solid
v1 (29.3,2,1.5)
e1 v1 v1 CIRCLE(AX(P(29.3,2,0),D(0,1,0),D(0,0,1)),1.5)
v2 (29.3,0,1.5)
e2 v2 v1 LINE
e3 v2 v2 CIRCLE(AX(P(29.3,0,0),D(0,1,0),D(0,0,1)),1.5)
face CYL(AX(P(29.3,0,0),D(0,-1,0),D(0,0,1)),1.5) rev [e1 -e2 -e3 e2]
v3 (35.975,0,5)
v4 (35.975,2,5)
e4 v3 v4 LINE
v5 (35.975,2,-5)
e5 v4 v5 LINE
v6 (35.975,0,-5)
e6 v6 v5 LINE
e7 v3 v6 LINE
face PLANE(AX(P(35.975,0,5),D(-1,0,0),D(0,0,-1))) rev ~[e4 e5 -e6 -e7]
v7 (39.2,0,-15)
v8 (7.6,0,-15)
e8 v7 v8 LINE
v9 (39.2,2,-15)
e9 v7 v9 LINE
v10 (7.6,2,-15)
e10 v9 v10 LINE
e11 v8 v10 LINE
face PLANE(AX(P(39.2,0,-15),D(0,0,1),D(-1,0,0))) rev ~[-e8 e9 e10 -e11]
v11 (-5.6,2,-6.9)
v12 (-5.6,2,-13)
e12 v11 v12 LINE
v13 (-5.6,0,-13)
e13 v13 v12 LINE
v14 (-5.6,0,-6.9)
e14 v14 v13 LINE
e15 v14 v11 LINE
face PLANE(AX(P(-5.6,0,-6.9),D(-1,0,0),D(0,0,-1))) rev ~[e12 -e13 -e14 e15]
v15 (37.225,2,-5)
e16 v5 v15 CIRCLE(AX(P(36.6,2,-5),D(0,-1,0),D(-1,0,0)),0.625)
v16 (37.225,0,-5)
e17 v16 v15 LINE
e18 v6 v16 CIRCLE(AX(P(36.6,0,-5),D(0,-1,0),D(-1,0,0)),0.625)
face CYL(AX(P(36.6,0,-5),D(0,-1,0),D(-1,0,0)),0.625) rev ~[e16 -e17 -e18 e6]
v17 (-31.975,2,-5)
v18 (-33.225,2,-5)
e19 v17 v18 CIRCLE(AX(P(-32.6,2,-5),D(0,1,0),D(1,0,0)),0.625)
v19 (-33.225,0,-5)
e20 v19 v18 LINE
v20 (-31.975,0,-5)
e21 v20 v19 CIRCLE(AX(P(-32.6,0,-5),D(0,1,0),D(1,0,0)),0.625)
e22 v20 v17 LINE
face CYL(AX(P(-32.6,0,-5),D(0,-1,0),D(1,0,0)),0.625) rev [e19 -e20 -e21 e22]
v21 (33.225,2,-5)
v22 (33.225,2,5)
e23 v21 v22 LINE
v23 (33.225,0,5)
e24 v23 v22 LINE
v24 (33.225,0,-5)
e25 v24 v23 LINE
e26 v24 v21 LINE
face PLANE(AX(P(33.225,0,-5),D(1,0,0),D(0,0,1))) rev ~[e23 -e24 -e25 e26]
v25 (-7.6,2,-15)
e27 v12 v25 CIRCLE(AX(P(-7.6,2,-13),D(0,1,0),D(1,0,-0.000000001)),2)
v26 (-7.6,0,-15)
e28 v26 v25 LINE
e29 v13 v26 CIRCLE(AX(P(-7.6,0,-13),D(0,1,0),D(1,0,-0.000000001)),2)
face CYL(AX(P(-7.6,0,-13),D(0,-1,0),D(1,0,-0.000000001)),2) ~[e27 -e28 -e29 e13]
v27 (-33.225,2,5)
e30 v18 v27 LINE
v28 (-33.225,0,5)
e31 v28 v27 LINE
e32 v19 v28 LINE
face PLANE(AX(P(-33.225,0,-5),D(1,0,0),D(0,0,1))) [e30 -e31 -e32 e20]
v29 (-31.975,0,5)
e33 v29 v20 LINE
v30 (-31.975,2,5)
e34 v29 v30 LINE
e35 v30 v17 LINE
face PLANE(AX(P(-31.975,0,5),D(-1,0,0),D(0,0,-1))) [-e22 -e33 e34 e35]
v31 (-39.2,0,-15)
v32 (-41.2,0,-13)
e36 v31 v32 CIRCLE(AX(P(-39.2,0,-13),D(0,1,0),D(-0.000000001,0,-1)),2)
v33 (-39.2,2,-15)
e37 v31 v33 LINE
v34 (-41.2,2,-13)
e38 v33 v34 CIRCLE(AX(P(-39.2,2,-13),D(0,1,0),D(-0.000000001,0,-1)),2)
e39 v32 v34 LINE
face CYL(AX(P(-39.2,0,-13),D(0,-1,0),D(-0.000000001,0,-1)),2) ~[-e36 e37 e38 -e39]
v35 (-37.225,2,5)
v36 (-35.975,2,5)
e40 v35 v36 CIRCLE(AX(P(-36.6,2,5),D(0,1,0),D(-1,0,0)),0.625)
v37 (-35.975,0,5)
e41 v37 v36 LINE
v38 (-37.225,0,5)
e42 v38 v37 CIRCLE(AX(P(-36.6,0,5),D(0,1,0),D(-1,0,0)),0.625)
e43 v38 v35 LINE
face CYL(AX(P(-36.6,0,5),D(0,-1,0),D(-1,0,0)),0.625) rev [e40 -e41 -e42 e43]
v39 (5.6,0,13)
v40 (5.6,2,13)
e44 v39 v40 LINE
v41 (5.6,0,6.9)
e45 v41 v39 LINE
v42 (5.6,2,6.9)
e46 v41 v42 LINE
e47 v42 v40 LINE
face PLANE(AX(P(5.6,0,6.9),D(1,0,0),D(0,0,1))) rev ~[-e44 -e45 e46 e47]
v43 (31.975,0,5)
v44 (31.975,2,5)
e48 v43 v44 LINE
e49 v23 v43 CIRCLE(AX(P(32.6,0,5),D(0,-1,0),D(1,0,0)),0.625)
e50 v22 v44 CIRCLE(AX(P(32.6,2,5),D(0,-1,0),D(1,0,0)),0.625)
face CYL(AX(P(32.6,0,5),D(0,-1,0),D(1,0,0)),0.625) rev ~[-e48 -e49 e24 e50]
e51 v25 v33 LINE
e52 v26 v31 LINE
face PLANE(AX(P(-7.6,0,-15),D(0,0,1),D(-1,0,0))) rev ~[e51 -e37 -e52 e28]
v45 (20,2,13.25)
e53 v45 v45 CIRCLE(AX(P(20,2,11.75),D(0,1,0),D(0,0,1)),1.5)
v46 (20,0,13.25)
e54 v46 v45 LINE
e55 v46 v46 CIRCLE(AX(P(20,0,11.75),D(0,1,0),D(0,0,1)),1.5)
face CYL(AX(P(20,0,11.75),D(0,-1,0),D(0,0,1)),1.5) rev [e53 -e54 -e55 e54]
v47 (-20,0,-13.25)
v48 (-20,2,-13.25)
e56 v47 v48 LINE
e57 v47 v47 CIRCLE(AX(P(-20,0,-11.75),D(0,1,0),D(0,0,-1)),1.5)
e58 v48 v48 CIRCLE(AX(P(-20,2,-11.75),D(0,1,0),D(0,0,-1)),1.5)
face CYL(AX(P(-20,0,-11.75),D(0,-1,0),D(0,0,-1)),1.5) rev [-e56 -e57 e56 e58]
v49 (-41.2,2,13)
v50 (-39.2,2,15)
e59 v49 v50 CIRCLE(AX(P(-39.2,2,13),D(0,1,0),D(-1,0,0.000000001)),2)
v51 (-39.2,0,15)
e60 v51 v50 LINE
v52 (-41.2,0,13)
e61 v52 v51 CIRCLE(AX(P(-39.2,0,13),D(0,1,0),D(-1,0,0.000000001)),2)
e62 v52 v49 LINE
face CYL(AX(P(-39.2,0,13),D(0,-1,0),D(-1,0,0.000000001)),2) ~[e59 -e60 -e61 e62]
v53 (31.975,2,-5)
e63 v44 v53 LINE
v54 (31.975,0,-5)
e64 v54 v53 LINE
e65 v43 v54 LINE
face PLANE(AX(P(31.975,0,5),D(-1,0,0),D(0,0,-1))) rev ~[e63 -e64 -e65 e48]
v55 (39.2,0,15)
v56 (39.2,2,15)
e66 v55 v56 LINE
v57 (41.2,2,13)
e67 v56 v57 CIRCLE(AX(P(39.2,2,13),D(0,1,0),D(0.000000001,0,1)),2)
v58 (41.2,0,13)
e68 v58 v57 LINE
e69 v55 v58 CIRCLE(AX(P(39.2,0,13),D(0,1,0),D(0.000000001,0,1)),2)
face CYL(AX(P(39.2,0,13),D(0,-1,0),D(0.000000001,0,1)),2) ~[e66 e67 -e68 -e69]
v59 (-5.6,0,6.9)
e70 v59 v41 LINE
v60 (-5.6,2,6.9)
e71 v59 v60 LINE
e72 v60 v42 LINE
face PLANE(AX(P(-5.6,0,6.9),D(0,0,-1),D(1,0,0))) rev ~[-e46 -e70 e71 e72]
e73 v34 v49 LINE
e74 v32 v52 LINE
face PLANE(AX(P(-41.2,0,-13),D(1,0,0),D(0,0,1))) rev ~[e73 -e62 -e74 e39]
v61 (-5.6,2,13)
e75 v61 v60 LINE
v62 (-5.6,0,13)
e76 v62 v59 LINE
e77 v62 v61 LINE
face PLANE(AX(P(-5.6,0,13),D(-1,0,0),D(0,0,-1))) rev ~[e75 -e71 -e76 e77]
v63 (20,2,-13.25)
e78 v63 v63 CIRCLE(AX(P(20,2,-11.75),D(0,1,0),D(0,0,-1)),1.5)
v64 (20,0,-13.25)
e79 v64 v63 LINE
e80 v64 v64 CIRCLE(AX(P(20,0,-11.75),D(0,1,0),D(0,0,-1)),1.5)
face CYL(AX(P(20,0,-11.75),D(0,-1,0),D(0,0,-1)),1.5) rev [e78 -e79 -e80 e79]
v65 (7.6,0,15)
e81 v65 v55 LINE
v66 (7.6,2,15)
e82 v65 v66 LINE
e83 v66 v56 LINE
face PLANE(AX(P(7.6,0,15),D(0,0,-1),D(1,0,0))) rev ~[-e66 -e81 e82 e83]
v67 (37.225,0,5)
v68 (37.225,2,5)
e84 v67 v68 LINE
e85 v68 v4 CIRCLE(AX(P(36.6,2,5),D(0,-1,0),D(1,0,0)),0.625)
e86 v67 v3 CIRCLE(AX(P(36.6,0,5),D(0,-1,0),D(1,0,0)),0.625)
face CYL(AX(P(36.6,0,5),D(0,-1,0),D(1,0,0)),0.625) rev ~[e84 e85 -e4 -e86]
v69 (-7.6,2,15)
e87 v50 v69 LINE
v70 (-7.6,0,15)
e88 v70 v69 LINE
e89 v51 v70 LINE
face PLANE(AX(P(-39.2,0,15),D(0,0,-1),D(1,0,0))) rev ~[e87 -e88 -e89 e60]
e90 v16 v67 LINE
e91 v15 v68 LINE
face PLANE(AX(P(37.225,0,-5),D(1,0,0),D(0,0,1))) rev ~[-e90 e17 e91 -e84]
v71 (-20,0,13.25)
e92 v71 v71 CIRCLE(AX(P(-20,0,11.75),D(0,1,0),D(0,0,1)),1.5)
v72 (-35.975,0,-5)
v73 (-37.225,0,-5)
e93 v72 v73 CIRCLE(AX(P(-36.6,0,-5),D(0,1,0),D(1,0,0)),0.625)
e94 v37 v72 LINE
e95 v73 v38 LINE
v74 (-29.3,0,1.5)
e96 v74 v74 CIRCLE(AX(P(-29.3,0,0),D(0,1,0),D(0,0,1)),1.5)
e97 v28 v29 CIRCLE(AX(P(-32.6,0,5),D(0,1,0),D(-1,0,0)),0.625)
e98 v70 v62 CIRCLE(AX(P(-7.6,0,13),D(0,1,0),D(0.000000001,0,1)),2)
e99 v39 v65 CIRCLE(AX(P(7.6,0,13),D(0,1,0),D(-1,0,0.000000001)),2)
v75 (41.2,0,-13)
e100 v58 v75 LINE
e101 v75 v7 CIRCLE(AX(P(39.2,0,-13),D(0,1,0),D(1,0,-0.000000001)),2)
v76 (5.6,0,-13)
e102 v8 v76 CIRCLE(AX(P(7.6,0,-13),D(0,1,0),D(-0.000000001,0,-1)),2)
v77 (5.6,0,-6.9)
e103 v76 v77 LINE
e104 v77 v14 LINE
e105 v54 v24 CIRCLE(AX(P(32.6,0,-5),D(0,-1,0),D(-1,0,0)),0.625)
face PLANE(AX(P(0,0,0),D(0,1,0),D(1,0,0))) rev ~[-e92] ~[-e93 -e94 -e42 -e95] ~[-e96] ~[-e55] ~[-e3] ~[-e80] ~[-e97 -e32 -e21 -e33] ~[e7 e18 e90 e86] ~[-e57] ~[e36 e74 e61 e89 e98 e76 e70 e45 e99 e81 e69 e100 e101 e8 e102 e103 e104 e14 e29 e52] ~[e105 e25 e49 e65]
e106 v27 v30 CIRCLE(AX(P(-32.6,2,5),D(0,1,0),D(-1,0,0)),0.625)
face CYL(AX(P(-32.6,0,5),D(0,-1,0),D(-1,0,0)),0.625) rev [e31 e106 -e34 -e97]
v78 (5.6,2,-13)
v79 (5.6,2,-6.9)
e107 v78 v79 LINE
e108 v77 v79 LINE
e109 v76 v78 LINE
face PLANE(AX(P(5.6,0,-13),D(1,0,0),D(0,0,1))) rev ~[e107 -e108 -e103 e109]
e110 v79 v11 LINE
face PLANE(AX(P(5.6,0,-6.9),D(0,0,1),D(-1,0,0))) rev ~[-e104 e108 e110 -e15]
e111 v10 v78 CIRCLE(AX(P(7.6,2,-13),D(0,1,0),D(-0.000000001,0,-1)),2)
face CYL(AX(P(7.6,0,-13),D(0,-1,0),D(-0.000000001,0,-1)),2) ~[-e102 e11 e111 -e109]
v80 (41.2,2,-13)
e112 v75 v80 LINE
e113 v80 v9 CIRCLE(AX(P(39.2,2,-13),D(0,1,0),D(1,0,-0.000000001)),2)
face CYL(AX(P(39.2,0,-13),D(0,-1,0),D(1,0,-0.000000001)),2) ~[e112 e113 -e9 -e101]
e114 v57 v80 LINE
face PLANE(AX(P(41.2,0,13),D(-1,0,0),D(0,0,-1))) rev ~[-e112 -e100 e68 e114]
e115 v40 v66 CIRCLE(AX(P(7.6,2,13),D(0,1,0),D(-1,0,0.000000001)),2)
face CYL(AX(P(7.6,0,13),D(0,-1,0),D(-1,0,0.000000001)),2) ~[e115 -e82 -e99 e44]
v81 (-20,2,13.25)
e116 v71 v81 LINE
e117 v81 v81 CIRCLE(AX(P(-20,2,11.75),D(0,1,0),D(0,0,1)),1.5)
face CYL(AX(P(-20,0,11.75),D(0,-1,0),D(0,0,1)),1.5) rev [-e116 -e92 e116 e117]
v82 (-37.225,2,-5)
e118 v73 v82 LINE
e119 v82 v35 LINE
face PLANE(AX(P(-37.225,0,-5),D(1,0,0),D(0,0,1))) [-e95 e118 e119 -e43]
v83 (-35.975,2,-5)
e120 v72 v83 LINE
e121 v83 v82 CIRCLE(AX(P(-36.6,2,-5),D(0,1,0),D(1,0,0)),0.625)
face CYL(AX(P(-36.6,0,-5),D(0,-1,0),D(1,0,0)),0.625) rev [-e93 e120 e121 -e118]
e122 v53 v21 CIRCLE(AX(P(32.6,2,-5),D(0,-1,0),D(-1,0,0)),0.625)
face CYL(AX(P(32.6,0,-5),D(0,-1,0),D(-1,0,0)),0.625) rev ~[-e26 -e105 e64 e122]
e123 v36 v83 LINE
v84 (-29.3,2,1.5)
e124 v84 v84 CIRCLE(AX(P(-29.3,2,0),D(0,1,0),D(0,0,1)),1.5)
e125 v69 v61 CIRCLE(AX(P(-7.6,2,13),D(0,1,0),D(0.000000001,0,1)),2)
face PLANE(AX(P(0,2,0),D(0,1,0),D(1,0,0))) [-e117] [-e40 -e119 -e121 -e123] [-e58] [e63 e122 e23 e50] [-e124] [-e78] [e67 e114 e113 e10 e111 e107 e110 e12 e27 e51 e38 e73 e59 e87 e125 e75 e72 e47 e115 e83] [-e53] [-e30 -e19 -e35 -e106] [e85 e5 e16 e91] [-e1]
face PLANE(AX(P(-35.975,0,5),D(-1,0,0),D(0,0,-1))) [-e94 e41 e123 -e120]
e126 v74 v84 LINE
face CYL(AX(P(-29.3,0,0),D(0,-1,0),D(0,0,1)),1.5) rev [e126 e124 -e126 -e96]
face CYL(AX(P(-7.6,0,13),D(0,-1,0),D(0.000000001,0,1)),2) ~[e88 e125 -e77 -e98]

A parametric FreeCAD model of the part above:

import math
import FreeCAD as App
import Part
import Sketcher

V = App.Vector

doc = App.newDocument("Part")
body = doc.addObject("PartDesign::Body", "Body")

# Sketch on XZ plane
sketch1 = body.newObject("Sketcher::SketchObject", "Sketch")
sketch1.AttachmentSupport = (doc.getObject("XZ_Plane"), [""])
sketch1.MapMode = "FlatFace"
sketch1.addGeometry([
    Part.LineSegment(V(-5.6, -6.9, 0), V(-5.6, -13, 0)),  # 0
    Part.ArcOfCircle(Part.Circle(V(-7.6, -13, 0), V(0, 0, 1), 2), math.radians(-90), math.radians(0)),  # 1
    Part.LineSegment(V(-7.6, -15, 0), V(-39.2, -15, 0)),  # 2
    Part.ArcOfCircle(Part.Circle(V(-39.2, -13, 0), V(0, 0, 1), 2), math.radians(-180), math.radians(-90)),  # 3
    Part.LineSegment(V(-41.2, -13, 0), V(-41.2, 13, 0)),  # 4
    Part.ArcOfCircle(Part.Circle(V(-39.2, 13, 0), V(0, 0, 1), 2), math.radians(90), math.radians(180)),  # 5
    Part.LineSegment(V(-39.2, 15, 0), V(-7.6, 15, 0)),  # 6
    Part.ArcOfCircle(Part.Circle(V(-7.6, 13, 0), V(0, 0, 1), 2), math.radians(0), math.radians(90)),  # 7
    Part.LineSegment(V(-5.6, 13, 0), V(-5.6, 6.9, 0)),  # 8
    Part.LineSegment(V(-5.6, 6.9, 0), V(5.6, 6.9, 0)),  # 9
    Part.LineSegment(V(5.6, 6.9, 0), V(5.6, 13, 0)),  # 10
    Part.ArcOfCircle(Part.Circle(V(7.6, 13, 0), V(0, 0, 1), 2), math.radians(90), math.radians(180)),  # 11
    Part.LineSegment(V(7.6, 15, 0), V(39.2, 15, 0)),  # 12
    Part.ArcOfCircle(Part.Circle(V(39.2, 13, 0), V(0, 0, 1), 2), math.radians(0), math.radians(90)),  # 13
    Part.LineSegment(V(41.2, 13, 0), V(41.2, -13, 0)),  # 14
    Part.ArcOfCircle(Part.Circle(V(39.2, -13, 0), V(0, 0, 1), 2), math.radians(-90), math.radians(0)),  # 15
    Part.LineSegment(V(39.2, -15, 0), V(7.6, -15, 0)),  # 16
    Part.ArcOfCircle(Part.Circle(V(7.6, -13, 0), V(0, 0, 1), 2), math.radians(-180), math.radians(-90)),  # 17
    Part.LineSegment(V(5.6, -13, 0), V(5.6, -6.9, 0)),  # 18
    Part.LineSegment(V(5.6, -6.9, 0), V(-5.6, -6.9, 0)),  # 19
    Part.Circle(V(-20, 11.75, 0), V(0, 0, 1), 1.5),  # 20
    Part.Circle(V(20, 11.75, 0), V(0, 0, 1), 1.5),  # 21
    Part.LineSegment(V(-37.225, 5, 0), V(-37.225, -5, 0)),  # 22
    Part.ArcOfCircle(Part.Circle(V(-36.6, -5, 0), V(0, 0, 1), 0.625), math.radians(180), math.radians(360)),  # 23
    Part.LineSegment(V(-35.975, -5, 0), V(-35.975, 5, 0)),  # 24
    Part.ArcOfCircle(Part.Circle(V(-36.6, 5, 0), V(0, 0, 1), 0.625), math.radians(0), math.radians(180)),  # 25
    Part.LineSegment(V(-33.225, 5, 0), V(-33.225, -5, 0)),  # 26
    Part.ArcOfCircle(Part.Circle(V(-32.6, -5, 0), V(0, 0, 1), 0.625), math.radians(180), math.radians(360)),  # 27
    Part.LineSegment(V(-31.975, -5, 0), V(-31.975, 5, 0)),  # 28
    Part.ArcOfCircle(Part.Circle(V(-32.6, 5, 0), V(0, 0, 1), 0.625), math.radians(0), math.radians(180)),  # 29
    Part.Circle(V(-29.3, 0, 0), V(0, 0, 1), 1.5),  # 30
    Part.Circle(V(-20, -11.75, 0), V(0, 0, 1), 1.5),  # 31
    Part.Circle(V(29.3, 0, 0), V(0, 0, 1), 1.5),  # 32
    Part.ArcOfCircle(Part.Circle(V(32.6, -5, 0), V(0, 0, 1), 0.625), math.radians(180), math.radians(360)),  # 33
    Part.LineSegment(V(33.225, -5, 0), V(33.225, 5, 0)),  # 34
    Part.ArcOfCircle(Part.Circle(V(32.6, 5, 0), V(0, 0, 1), 0.625), math.radians(0), math.radians(180)),  # 35
    Part.LineSegment(V(31.975, 5, 0), V(31.975, -5, 0)),  # 36
    Part.ArcOfCircle(Part.Circle(V(36.6, -5, 0), V(0, 0, 1), 0.625), math.radians(180), math.radians(360)),  # 37
    Part.LineSegment(V(37.225, -5, 0), V(37.225, 5, 0)),  # 38
    Part.ArcOfCircle(Part.Circle(V(36.6, 5, 0), V(0, 0, 1), 0.625), math.radians(0), math.radians(180)),  # 39
    Part.LineSegment(V(35.975, 5, 0), V(35.975, -5, 0)),  # 40
    Part.Circle(V(20, -11.75, 0), V(0, 0, 1), 1.5),  # 41
], False)
sketch1.addConstraint([
    Sketcher.Constraint("Tangent", 0, 2, 1, 2),
    Sketcher.Constraint("Tangent", 1, 1, 2, 1),
    Sketcher.Constraint("Tangent", 2, 2, 3, 2),
    Sketcher.Constraint("Tangent", 3, 1, 4, 1),
    Sketcher.Constraint("Tangent", 4, 2, 5, 2),
    Sketcher.Constraint("Tangent", 5, 1, 6, 1),
    Sketcher.Constraint("Tangent", 6, 2, 7, 2),
    Sketcher.Constraint("Tangent", 7, 1, 8, 1),
    Sketcher.Constraint("Coincident", 8, 2, 9, 1),
    Sketcher.Constraint("Coincident", 9, 2, 10, 1),
    Sketcher.Constraint("Tangent", 10, 2, 11, 2),
    Sketcher.Constraint("Tangent", 11, 1, 12, 1),
    Sketcher.Constraint("Tangent", 12, 2, 13, 2),
    Sketcher.Constraint("Tangent", 13, 1, 14, 1),
    Sketcher.Constraint("Tangent", 14, 2, 15, 2),
    Sketcher.Constraint("Tangent", 15, 1, 16, 1),
    Sketcher.Constraint("Tangent", 16, 2, 17, 2),
    Sketcher.Constraint("Tangent", 17, 1, 18, 1),
    Sketcher.Constraint("Coincident", 18, 2, 19, 1),
    Sketcher.Constraint("Coincident", 19, 2, 0, 1),
    Sketcher.Constraint("Tangent", 22, 2, 23, 1),
    Sketcher.Constraint("Tangent", 23, 2, 24, 1),
    Sketcher.Constraint("Tangent", 24, 2, 25, 1),
    Sketcher.Constraint("Tangent", 25, 2, 22, 1),
    Sketcher.Constraint("Tangent", 26, 2, 27, 1),
    Sketcher.Constraint("Tangent", 27, 2, 28, 1),
    Sketcher.Constraint("Tangent", 28, 2, 29, 1),
    Sketcher.Constraint("Tangent", 29, 2, 26, 1),
    Sketcher.Constraint("Tangent", 33, 2, 34, 1),
    Sketcher.Constraint("Tangent", 34, 2, 35, 1),
    Sketcher.Constraint("Tangent", 35, 2, 36, 1),
    Sketcher.Constraint("Tangent", 36, 2, 33, 1),
    Sketcher.Constraint("Tangent", 37, 2, 38, 1),
    Sketcher.Constraint("Tangent", 38, 2, 39, 1),
    Sketcher.Constraint("Tangent", 39, 2, 40, 1),
    Sketcher.Constraint("Tangent", 40, 2, 37, 1),
    Sketcher.Constraint("Vertical", 0),
    Sketcher.Constraint("Horizontal", 2),
    Sketcher.Constraint("Vertical", 4),
    Sketcher.Constraint("Horizontal", 6),
    Sketcher.Constraint("Vertical", 8),
    Sketcher.Constraint("Horizontal", 9),
    Sketcher.Constraint("Vertical", 10),
    Sketcher.Constraint("Horizontal", 12),
    Sketcher.Constraint("Vertical", 14),
    Sketcher.Constraint("Horizontal", 16),
    Sketcher.Constraint("Vertical", 18),
    Sketcher.Constraint("Horizontal", 19),
    Sketcher.Constraint("Vertical", 22),
    Sketcher.Constraint("Vertical", 24),
    Sketcher.Constraint("Vertical", 26),
    Sketcher.Constraint("Vertical", 28),
    Sketcher.Constraint("Vertical", 34),
    Sketcher.Constraint("Vertical", 36),
    Sketcher.Constraint("Vertical", 38),
    Sketcher.Constraint("Vertical", 40),
    Sketcher.Constraint("Equal", 1, 3),
    Sketcher.Constraint("Equal", 3, 5),
    Sketcher.Constraint("Equal", 5, 7),
    Sketcher.Constraint("Equal", 7, 11),
    Sketcher.Constraint("Equal", 11, 13),
    Sketcher.Constraint("Equal", 13, 15),
    Sketcher.Constraint("Equal", 15, 17),
    Sketcher.Constraint("Equal", 20, 21),
    Sketcher.Constraint("Equal", 25, 27),
    Sketcher.Constraint("Equal", 21, 30),
    Sketcher.Constraint("Equal", 30, 31),
    Sketcher.Constraint("Equal", 31, 32),
    Sketcher.Constraint("Equal", 29, 33),
    Sketcher.Constraint("Equal", 35, 37),
    Sketcher.Constraint("Equal", 32, 41),
    Sketcher.Constraint("Symmetric", 1, 3, 11, 3, -1, 1),
    Sketcher.Constraint("Symmetric", 5, 3, 15, 3, -1, 1),
    Sketcher.Constraint("Symmetric", 21, 3, 31, 3, -1, 1),
    Sketcher.Constraint("Symmetric", 30, 3, 32, 3, -1, 1),
    Sketcher.Constraint("Symmetric", 29, 3, 33, 3, -1, 1),
    Sketcher.Constraint("Symmetric", 25, 3, 37, 3, -1, 1),
    Sketcher.Constraint("Symmetric", 20, 3, 41, 3, -1, 1),
    Sketcher.Constraint("Symmetric", 8, 2, 18, 2, -1, 1),
    Sketcher.Constraint("Symmetric", 7, 3, 11, 3, -2),
    Sketcher.Constraint("Symmetric", 20, 3, 21, 3, -2),
    Sketcher.Constraint("PointOnObject", 30, 3, -1),
    Sketcher.Constraint("Horizontal", 23, 3, 27, 3),
    Sketcher.Constraint("Horizontal", 25, 3, 29, 3),
    Sketcher.Constraint("Horizontal", 27, 3, 33, 3),
    Sketcher.Constraint("Horizontal", 29, 3, 35, 3),
    Sketcher.Constraint("Horizontal", 35, 3, 39, 3),
    Sketcher.Constraint("Diameter", 20, 3.0),
    Sketcher.Constraint("Radius", 1, 2.0),
    Sketcher.Constraint("DistanceY", 4, 1, 4, 2, 26.0),
    Sketcher.Constraint("DistanceY", 22, 2, 22, 1, 10.0),
    Sketcher.Constraint("DistanceX", 2, 2, 2, 1, 31.6),
    Sketcher.Constraint("DistanceX", 9, 1, 9, 2, 11.2),
    Sketcher.Constraint("DistanceY", 0, 2, 0, 1, 6.1),
    Sketcher.Constraint("DistanceX", 20, 3, -1, 1, 20.0),
    Sketcher.Constraint("Radius", 23, 0.625),
    Sketcher.Constraint("DistanceX", 23, 3, 1, 3, 29.0),
    Sketcher.Constraint("DistanceX", 23, 3, 27, 3, 4.0),
    Sketcher.Constraint("DistanceX", 30, 3, -1, 1, 29.3),
    Sketcher.Constraint("DistanceY", -1, 1, 20, 3, 11.75),
])
pad1 = body.newObject("PartDesign::Pad", "Pad")
pad1.Profile = sketch1
pad1.Length = 2
pad1.Reversed = True

doc.recompute()
